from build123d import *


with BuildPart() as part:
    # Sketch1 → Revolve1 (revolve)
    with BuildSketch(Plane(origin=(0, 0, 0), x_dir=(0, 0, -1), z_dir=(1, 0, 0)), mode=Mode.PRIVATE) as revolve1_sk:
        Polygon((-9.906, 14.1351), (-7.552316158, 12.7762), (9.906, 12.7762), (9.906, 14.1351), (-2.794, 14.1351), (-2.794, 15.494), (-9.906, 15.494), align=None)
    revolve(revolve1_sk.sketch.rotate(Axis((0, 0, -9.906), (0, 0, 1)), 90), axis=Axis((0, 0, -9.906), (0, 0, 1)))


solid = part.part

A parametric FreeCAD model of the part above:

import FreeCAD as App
import Part
import Sketcher
Q = App.Units.Quantity


def add_polygon(sketch, points):
    """Adds a closed chain of lines whose ends are joined by coincident constraints."""
    first, n = sketch.GeometryCount, len(points)
    for a, b in zip(points, points[1:] + points[:1]):
        sketch.addGeometry(Part.LineSegment(App.Vector(*a, 0), App.Vector(*b, 0)), False)
    for i in range(n):
        sketch.addConstraint(Sketcher.Constraint("Coincident", first + i, 2, first + (i + 1) % n, 1))

doc = App.newDocument("Part")
params = doc.addObject("Spreadsheet::Sheet", "Params")
for row, (alias, value) in enumerate([
    ("sketch1_height", "0.5 in"),
    ("sketch1_height2", "0.28 in"),
    ("sketch1_length", "0.107 in"),
    ("revolution_angle", "360 deg"),
], start=1):
    params.set(f"A{row}", alias)
    params.set(f"B{row}", "=" + value)
    params.setAlias(f"B{row}", alias)

body = doc.addObject("PartDesign::Body", "Body")

sketch1 = doc.addObject("Sketcher::SketchObject", "Sketch")
body.addObject(sketch1)
sketch1.AttachmentSupport = (doc.YZ_Plane, [""])
sketch1.MapMode = "FlatFace"
add_polygon(sketch1, [(14.1, 9.9), (12.8, 7.6), (12.8, -9.9), (14.1, -9.9), (14.1, 2.8), (15.5, 2.8), (15.5, 9.9)])
sketch1.addConstraint(Sketcher.Constraint("Vertical", 1))
sketch1.addConstraint(Sketcher.Constraint("Horizontal", 2))
sketch1.addConstraint(Sketcher.Constraint("Vertical", 3))
sketch1.addConstraint(Sketcher.Constraint("Horizontal", 4))
sketch1.addConstraint(Sketcher.Constraint("Vertical", 5))
sketch1.addConstraint(Sketcher.Constraint("Horizontal", 6))
sketch1.addConstraint(Sketcher.Constraint("Symmetric", 2, 2, 6, 2, -1))
sketch1.addConstraint(Sketcher.Constraint("Equal", 2, 4))
sketch1.addConstraint(Sketcher.Constraint("DistanceY", 3, 1, 3, 2, Q("0.5 in")))
sketch1.addConstraint(Sketcher.Constraint("Angle", 0, Q("-120 deg")))
sketch1.addConstraint(Sketcher.Constraint("DistanceY", 5, 1, 5, 2, Q("0.28 in")))
sketch1.addConstraint(Sketcher.Constraint("DistanceX", -1, 1, 4, 2, Q("0.61 in")))
sketch1.addConstraint(Sketcher.Constraint("Distance", 0, Q("0.107 in")))
sketch1.setExpression("Constraints[15]", "Params.sketch1_height")
sketch1.setExpression("Constraints[17]", "Params.sketch1_height2")
sketch1.setExpression("Constraints[19]", "Params.sketch1_length")
revolution = doc.addObject("PartDesign::Revolution", "Revolution")
body.addObject(revolution)
revolution.Profile = sketch1
revolution.ReferenceAxis = (sketch1, ["V_Axis"])
revolution.setExpression("Angle", "Params.revolution_angle")

doc.recompute()
